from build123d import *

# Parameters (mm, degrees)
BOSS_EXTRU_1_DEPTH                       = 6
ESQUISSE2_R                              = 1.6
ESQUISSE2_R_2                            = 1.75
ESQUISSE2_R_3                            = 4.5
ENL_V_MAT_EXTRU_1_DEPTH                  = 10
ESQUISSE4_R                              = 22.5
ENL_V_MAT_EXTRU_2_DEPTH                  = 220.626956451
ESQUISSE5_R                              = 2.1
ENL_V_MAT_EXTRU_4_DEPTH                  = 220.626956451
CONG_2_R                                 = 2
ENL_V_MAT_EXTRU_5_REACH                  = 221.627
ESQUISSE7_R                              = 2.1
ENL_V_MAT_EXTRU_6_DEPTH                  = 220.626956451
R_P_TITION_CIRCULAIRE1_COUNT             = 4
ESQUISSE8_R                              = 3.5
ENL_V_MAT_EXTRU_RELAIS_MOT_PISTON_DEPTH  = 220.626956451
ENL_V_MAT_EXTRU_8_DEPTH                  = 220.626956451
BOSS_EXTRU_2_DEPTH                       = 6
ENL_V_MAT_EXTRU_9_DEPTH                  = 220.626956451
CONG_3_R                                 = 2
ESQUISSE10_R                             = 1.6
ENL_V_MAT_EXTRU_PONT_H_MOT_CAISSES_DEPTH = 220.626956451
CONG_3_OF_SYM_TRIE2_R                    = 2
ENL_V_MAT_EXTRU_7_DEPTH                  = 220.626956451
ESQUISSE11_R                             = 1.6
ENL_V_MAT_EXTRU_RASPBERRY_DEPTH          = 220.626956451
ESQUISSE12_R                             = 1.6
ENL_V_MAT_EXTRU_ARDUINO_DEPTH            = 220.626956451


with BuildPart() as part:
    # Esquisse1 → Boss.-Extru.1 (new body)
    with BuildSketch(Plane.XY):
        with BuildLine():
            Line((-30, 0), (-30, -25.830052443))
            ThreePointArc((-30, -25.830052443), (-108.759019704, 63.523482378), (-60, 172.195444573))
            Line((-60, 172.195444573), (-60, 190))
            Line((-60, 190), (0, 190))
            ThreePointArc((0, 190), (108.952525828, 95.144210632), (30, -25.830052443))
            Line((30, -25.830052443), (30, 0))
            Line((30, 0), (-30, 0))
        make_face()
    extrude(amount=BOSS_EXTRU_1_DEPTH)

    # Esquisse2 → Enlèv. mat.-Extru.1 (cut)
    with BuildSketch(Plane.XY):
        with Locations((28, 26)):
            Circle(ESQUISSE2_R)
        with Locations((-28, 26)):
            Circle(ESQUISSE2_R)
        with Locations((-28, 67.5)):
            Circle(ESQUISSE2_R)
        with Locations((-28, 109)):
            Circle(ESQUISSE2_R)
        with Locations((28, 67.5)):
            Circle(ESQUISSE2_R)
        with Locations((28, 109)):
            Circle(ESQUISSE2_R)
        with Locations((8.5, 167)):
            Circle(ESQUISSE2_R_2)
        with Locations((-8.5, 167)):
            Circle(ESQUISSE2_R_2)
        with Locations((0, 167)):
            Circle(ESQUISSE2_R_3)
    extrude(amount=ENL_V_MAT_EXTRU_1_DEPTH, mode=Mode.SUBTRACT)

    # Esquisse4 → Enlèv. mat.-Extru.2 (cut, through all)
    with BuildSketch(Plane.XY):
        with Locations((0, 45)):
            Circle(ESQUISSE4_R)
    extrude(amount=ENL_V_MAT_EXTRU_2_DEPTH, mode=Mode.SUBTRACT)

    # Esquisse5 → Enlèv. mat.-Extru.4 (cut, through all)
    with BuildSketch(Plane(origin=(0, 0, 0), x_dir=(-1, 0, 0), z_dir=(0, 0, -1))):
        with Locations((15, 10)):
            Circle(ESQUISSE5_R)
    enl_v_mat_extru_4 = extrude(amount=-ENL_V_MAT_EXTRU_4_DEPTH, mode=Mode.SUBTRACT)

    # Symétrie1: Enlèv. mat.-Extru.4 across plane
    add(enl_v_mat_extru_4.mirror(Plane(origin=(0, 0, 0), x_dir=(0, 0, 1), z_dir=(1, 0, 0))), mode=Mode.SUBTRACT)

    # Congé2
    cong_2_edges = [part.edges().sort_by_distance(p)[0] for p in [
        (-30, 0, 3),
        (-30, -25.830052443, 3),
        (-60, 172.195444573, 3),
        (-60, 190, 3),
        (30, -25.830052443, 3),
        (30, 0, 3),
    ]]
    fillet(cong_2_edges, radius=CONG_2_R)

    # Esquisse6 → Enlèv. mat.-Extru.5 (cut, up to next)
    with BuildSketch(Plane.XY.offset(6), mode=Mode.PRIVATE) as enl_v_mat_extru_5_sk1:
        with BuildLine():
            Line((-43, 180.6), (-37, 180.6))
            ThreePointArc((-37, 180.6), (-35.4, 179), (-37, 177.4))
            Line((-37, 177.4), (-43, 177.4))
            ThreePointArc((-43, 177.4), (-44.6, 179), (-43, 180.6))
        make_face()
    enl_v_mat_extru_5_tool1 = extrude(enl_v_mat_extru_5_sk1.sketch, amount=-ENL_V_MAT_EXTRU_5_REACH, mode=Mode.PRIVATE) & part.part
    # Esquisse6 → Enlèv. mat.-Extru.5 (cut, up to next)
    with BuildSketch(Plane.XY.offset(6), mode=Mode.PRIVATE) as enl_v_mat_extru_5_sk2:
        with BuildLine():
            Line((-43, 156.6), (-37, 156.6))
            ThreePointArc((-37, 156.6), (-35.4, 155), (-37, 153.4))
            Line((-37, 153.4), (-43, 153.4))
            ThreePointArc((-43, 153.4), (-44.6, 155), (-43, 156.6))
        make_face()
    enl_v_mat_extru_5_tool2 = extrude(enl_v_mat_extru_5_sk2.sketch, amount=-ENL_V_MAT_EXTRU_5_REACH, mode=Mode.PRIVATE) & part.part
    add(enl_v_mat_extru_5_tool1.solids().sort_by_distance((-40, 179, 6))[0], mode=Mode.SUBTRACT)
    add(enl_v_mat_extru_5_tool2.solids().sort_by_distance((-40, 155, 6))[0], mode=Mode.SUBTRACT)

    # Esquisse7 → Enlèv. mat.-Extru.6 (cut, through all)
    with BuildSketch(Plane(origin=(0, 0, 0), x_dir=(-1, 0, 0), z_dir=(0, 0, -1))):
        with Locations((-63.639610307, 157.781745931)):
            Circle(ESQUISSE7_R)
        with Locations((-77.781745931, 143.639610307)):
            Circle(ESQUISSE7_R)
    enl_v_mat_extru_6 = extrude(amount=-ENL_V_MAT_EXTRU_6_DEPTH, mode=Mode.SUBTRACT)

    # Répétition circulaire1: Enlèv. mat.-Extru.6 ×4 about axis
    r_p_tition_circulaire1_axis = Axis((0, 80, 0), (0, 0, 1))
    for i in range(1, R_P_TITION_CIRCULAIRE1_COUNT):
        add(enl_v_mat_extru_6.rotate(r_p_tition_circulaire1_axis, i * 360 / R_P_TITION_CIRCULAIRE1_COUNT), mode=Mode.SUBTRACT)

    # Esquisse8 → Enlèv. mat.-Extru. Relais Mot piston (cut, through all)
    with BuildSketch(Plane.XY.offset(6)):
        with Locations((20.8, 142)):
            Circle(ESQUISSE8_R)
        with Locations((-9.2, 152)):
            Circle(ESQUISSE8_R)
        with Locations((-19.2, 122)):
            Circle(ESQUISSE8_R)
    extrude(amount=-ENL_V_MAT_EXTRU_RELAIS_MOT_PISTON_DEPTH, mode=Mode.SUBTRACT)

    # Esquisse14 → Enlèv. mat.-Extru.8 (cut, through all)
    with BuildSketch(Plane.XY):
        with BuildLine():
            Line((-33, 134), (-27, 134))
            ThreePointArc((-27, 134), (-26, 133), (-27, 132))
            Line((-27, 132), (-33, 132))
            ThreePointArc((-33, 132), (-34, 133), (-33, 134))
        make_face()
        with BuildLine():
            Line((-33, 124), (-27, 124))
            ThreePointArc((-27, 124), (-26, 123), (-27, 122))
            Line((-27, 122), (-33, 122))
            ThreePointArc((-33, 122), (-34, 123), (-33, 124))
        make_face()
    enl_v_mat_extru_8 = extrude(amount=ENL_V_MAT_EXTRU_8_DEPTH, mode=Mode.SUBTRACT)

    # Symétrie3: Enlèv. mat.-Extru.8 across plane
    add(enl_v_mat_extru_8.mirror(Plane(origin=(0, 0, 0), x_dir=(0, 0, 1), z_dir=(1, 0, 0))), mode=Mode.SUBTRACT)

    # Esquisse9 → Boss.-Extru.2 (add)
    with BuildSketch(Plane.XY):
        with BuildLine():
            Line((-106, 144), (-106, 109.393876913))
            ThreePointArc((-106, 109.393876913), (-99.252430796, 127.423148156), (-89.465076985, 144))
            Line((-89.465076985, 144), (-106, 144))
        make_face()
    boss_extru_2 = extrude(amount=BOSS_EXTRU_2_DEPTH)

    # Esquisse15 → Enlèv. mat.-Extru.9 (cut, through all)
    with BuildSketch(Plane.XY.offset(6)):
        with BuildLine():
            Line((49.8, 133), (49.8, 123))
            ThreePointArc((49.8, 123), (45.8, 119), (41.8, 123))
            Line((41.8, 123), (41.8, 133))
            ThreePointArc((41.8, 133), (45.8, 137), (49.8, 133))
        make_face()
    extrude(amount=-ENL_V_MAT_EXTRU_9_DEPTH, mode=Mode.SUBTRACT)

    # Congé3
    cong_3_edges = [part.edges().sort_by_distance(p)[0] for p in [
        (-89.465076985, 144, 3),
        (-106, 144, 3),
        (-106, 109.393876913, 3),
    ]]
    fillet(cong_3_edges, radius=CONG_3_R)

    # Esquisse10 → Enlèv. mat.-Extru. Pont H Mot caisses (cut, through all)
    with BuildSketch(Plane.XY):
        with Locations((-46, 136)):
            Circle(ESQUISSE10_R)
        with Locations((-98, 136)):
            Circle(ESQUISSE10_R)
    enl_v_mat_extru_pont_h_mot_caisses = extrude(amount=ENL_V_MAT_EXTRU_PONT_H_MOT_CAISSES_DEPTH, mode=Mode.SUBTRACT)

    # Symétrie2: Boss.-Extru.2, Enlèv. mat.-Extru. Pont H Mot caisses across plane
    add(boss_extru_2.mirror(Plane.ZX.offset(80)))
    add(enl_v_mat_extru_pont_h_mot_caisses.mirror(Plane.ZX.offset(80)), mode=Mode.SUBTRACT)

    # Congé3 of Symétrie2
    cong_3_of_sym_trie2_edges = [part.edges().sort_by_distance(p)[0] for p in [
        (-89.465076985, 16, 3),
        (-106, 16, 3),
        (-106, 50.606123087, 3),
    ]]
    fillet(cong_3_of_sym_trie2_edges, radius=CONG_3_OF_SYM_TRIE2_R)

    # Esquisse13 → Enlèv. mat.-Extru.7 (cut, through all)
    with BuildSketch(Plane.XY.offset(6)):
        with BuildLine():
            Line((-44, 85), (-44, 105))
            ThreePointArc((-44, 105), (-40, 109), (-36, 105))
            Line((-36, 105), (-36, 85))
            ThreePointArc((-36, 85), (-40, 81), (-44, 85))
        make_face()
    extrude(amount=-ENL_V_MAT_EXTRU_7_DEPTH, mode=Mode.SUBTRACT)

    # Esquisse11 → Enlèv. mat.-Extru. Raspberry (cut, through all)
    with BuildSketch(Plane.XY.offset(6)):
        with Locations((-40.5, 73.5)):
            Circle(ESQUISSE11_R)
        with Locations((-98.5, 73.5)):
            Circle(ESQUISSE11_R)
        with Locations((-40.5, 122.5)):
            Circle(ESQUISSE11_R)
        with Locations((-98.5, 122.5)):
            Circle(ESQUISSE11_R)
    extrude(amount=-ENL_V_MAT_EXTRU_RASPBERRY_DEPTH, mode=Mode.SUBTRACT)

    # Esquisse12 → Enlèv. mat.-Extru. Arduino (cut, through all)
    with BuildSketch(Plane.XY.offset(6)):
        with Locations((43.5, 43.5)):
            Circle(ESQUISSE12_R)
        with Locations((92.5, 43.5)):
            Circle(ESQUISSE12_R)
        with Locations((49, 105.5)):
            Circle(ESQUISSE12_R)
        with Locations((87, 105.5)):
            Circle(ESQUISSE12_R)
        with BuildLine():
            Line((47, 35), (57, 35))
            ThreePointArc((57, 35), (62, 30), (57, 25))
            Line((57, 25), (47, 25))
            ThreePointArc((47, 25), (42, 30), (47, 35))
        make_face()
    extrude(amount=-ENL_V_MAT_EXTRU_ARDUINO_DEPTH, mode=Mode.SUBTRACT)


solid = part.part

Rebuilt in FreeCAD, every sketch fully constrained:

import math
import FreeCAD as App
import Part
import Sketcher
Q = App.Units.Quantity


def edges_at(feature, points):
    """Names of the edges that pass closest to the given points."""
    edges = feature.Shape.Edges
    near = lambda p: min(range(len(edges)), key=lambda i: edges[i].distToShape(Part.Vertex(*p))[0])
    return sorted({f"Edge{near(p) + 1}" for p in points})

doc = App.newDocument("Part")
params = doc.addObject("Spreadsheet::Sheet", "Params")
for row, (alias, value) in enumerate([
    ("sketch1_radius", "110 mm"),
    ("sketch1_width", "60 mm"),
    ("pad1_length", "6 mm"),
    ("sketch2_diameter", "9 mm"),
    ("sketch2_diameter2", "3.2 mm"),
    ("sketch2_diameter3", "3.5 mm"),
    ("pocket1_length", "10 mm"),
    ("sketch3_diameter", "45 mm"),
    ("sketch4_diameter", "4.2 mm"),
    ("fillet_radius", "2 mm"),
    ("sketch5_radius", "1.6 mm"),
    ("sketch5_width", "6 mm"),
    ("sketch6_radius", "1.6 mm"),
    ("sketch6_width", "6 mm"),
    ("sketch7_diameter", "4.2 mm"),
    ("sketch8_diameter", "7 mm"),
    ("sketch9_radius", "1 mm"),
    ("sketch9_width", "6 mm"),
    ("sketch10_radius", "110 mm"),
    ("pad2_length", "6 mm"),
    ("sketch11_radius", "4 mm"),
    ("sketch11_height", "10 mm"),
    ("fillet2_radius", "2 mm"),
    ("sketch12_diameter", "3.2 mm"),
    ("fillet3_radius", "2 mm"),
    ("sketch13_radius", "4 mm"),
    ("sketch13_height", "20 mm"),
    ("sketch14_diameter", "3.2 mm"),
    ("sketch15_radius", "5 mm"),
    ("sketch15_diameter", "3.2 mm"),
    ("sketch15_width", "10 mm"),
], start=1):
    params.set(f"A{row}", alias)
    params.set(f"B{row}", "=" + value)
    params.setAlias(f"B{row}", alias)

body = doc.addObject("PartDesign::Body", "Body")

# Sketch on XY plane
sketch1 = body.newObject("Sketcher::SketchObject", "Sketch")
sketch1.AttachmentSupport = (doc.getObject("XY_Plane"), [""])
sketch1.MapMode = "FlatFace"
sketch1.addGeometry([
    Part.LineSegment(App.Vector(-30, -26, 0), App.Vector(-30, 0, 0)),  # 0
    Part.LineSegment(App.Vector(-30, 0, 0), App.Vector(30, 0, 0)),  # 1
    Part.LineSegment(App.Vector(30, 0, 0), App.Vector(30, -26, 0)),  # 2
    Part.ArcOfCircle(Part.Circle(App.Vector(0, 80, 0), App.Vector(0, 0, 1), 110), math.radians(-74), math.radians(90)),  # 3
    Part.LineSegment(App.Vector(0, 190, 0), App.Vector(-60, 190, 0)),  # 4
    Part.LineSegment(App.Vector(-60, 190, 0), App.Vector(-60, 172, 0)),  # 5
    Part.ArcOfCircle(Part.Circle(App.Vector(0, 80, 0), App.Vector(0, 0, 1), 110), math.radians(123), math.radians(254)),  # 6
], False)
sketch1.addConstraint([
    Sketcher.Constraint("Coincident", 0, 2, 1, 1),
    Sketcher.Constraint("Coincident", 1, 2, 2, 1),
    Sketcher.Constraint("Coincident", 2, 2, 3, 1),
    Sketcher.Constraint("Tangent", 3, 2, 4, 1),
    Sketcher.Constraint("Coincident", 4, 2, 5, 1),
    Sketcher.Constraint("Coincident", 5, 2, 6, 1),
    Sketcher.Constraint("Coincident", 6, 2, 0, 1),
    Sketcher.Constraint("Vertical", 0),
    Sketcher.Constraint("Horizontal", 1),
    Sketcher.Constraint("Vertical", 2),
    Sketcher.Constraint("Horizontal", 4),
    Sketcher.Constraint("Vertical", 5),
    Sketcher.Constraint("Coincident", 6, 3, 3, 3),
    Sketcher.Constraint("Equal", 3, 6),
    Sketcher.Constraint("Symmetric", 0, 2, 1, 2, -1, 1),
    Sketcher.Constraint("PointOnObject", 3, 3, -2),
    Sketcher.Constraint("Equal", 1, 4),
    Sketcher.Constraint("Radius", 3, Q("110 mm")),
    Sketcher.Constraint("DistanceX", 1, 1, 1, 2, Q("60 mm")),
    Sketcher.Constraint("DistanceY", -1, 1, 3, 3, Q("80 mm")),
])
sketch1.setExpression("Constraints[17]", "Params.sketch1_radius")
sketch1.setExpression("Constraints[18]", "Params.sketch1_width")
pad1 = body.newObject("PartDesign::Pad", "Pad")
pad1.Profile = sketch1
pad1.setExpression("Length", "Params.pad1_length")

# Sketch on XY plane
sketch2 = body.newObject("Sketcher::SketchObject", "Sketch001")
sketch2.AttachmentSupport = (doc.getObject("XY_Plane"), [""])
sketch2.MapMode = "FlatFace"
sketch2.addGeometry([
    Part.Circle(App.Vector(28, 26, 0), App.Vector(0, 0, 1), 1.6),  # 0
    Part.Circle(App.Vector(-28, 26, 0), App.Vector(0, 0, 1), 1.6),  # 1
    Part.Circle(App.Vector(-28, 67.5, 0), App.Vector(0, 0, 1), 1.6),  # 2
    Part.Circle(App.Vector(-28, 109, 0), App.Vector(0, 0, 1), 1.6),  # 3
    Part.Circle(App.Vector(28, 67.5, 0), App.Vector(0, 0, 1), 1.6),  # 4
    Part.Circle(App.Vector(28, 109, 0), App.Vector(0, 0, 1), 1.6),  # 5
    Part.Circle(App.Vector(8.5, 167, 0), App.Vector(0, 0, 1), 1.8),  # 6
    Part.Circle(App.Vector(-8.5, 167, 0), App.Vector(0, 0, 1), 1.8),  # 7
    Part.Circle(App.Vector(0, 167, 0), App.Vector(0, 0, 1), 4.5),  # 8
], False)
sketch2.addConstraint([
    Sketcher.Constraint("Equal", 0, 1),
    Sketcher.Constraint("Equal", 1, 2),
    Sketcher.Constraint("Equal", 2, 3),
    Sketcher.Constraint("Equal", 3, 4),
    Sketcher.Constraint("Equal", 4, 5),
    Sketcher.Constraint("Equal", 6, 7),
    Sketcher.Constraint("Symmetric", 0, 3, 1, 3, -2),
    Sketcher.Constraint("Symmetric", 2, 3, 4, 3, -2),
    Sketcher.Constraint("Symmetric", 3, 3, 5, 3, -2),
    Sketcher.Constraint("Symmetric", 6, 3, 7, 3, -2),
    Sketcher.Constraint("PointOnObject", 8, 3, -2),
    Sketcher.Constraint("Horizontal", 7, 3, 8, 3),
    Sketcher.Constraint("Vertical", 1, 3, 2, 3),
    Sketcher.Constraint("Vertical", 2, 3, 3, 3),
    Sketcher.Constraint("Diameter", 8, Q("9 mm")),
    Sketcher.Constraint("Diameter", 0, Q("3.2 mm")),
    Sketcher.Constraint("Diameter", 6, Q("3.5 mm")),
    Sketcher.Constraint("DistanceX", -1, 1, 0, 3, Q("28 mm")),
    Sketcher.Constraint("DistanceY", -1, 1, 0, 3, Q("26 mm")),
    Sketcher.Constraint("DistanceY", -1, 1, 3, 3, Q("109 mm")),
    Sketcher.Constraint("DistanceY", -1, 1, 6, 3, Q("167 mm")),
    Sketcher.Constraint("DistanceX", 7, 3, 6, 3, Q("17 mm")),
    Sketcher.Constraint("DistanceY", -1, 1, 2, 3, Q("67.5 mm")),
])
sketch2.setExpression("Constraints[14]", "Params.sketch2_diameter")
sketch2.setExpression("Constraints[15]", "Params.sketch2_diameter2")
sketch2.setExpression("Constraints[16]", "Params.sketch2_diameter3")
pocket1 = body.newObject("PartDesign::Pocket", "Pocket")
pocket1.Profile = sketch2
pocket1.setExpression("Length", "Params.pocket1_length")
pocket1.Reversed = True

# Sketch on XY plane
sketch3 = body.newObject("Sketcher::SketchObject", "Sketch002")
sketch3.AttachmentSupport = (doc.getObject("XY_Plane"), [""])
sketch3.MapMode = "FlatFace"
sketch3.addGeometry(Part.Circle(App.Vector(0, 45, 0), App.Vector(0, 0, 1), 22), False)
sketch3.addConstraint([
    Sketcher.Constraint("PointOnObject", 0, 3, -2),
    Sketcher.Constraint("Diameter", 0, Q("45 mm")),
    Sketcher.Constraint("DistanceY", -1, 1, 0, 3, Q("45 mm")),
])
sketch3.setExpression("Constraints[1]", "Params.sketch3_diameter")
pocket2 = body.newObject("PartDesign::Pocket", "Pocket001")
pocket2.Profile = sketch3
pocket2.Type = "ThroughAll"
pocket2.Reversed = True

# Sketch on XY plane
sketch4 = body.newObject("Sketcher::SketchObject", "Sketch003")
sketch4.AttachmentSupport = (doc.getObject("XY_Plane"), [""])
sketch4.MapMode = "FlatFace"
sketch4.addGeometry(Part.Circle(App.Vector(-15, 10, 0), App.Vector(0, 0, 1), 2.1), False)
sketch4.addConstraint([
    Sketcher.Constraint("Diameter", 0, Q("4.2 mm")),
    Sketcher.Constraint("DistanceX", 0, 3, -1, 1, Q("15 mm")),
    Sketcher.Constraint("DistanceY", -1, 1, 0, 3, Q("10 mm")),
])
sketch4.setExpression("Constraints[0]", "Params.sketch4_diameter")
pocket3 = body.newObject("PartDesign::Pocket", "Pocket002")
pocket3.Profile = sketch4
pocket3.Type = "ThroughAll"
pocket3.Reversed = True
doc.recompute()

mirrored = body.newObject("PartDesign::Mirrored", "Mirrored")
mirrored.Originals = [pocket3]
mirrored.MirrorPlane = (doc.getObject("YZ_Plane"), [""])
body.Tip = mirrored
doc.recompute()

fillet = body.newObject("PartDesign::Fillet", "Fillet")
fillet.Base = (mirrored, edges_at(mirrored, [
    (-30, 0, 3),
    (-30, -25.83, 3),
    (-60, 172.195, 3),
    (-60, 190, 3),
    (30, -25.83, 3),
    (30, 0, 3),
]))
fillet.setExpression("Radius", "Params.fillet_radius")

# Sketch on XY plane
sketch5 = body.newObject("Sketcher::SketchObject", "Sketch004")
sketch5.AttachmentSupport = (doc.getObject("XY_Plane"), [""])
sketch5.MapMode = "FlatFace"
sketch5.AttachmentOffset = App.Placement(App.Vector(0, 0, 6), App.Rotation())
sketch5.addGeometry([
    Part.LineSegment(App.Vector(-37, 180.6, 0), App.Vector(-43, 180.6, 0)),
    Part.ArcOfCircle(Part.Circle(App.Vector(-43, 179, 0), App.Vector(0, 0, 1), 1.6), math.radians(90), math.radians(270)),
    Part.LineSegment(App.Vector(-43, 177.4, 0), App.Vector(-37, 177.4, 0)),
    Part.ArcOfCircle(Part.Circle(App.Vector(-37, 179, 0), App.Vector(0, 0, 1), 1.6), math.radians(-90), math.radians(90)),
], False)
sketch5.addConstraint([
    Sketcher.Constraint("Tangent", 0, 2, 1, 1),
    Sketcher.Constraint("Tangent", 1, 2, 2, 1),
    Sketcher.Constraint("Tangent", 2, 2, 3, 1),
    Sketcher.Constraint("Tangent", 3, 2, 0, 1),
    Sketcher.Constraint("Horizontal", 0),
    Sketcher.Constraint("Horizontal", 2),
    Sketcher.Constraint("Radius", 1, Q("1.6 mm")),
    Sketcher.Constraint("DistanceX", 0, 2, 0, 1, Q("6 mm")),
    Sketcher.Constraint("DistanceX", 1, 3, -1, 1, Q("43 mm")),
    Sketcher.Constraint("DistanceY", -1, 1, 1, 3, Q("179 mm")),
])
sketch5.setExpression("Constraints[6]", "Params.sketch5_radius")
sketch5.setExpression("Constraints[7]", "Params.sketch5_width")
pocket4 = body.newObject("PartDesign::Pocket", "Pocket003")
pocket4.Profile = sketch5
pocket4.Type = "UpToFirst"

# Sketch on XY plane
sketch6 = body.newObject("Sketcher::SketchObject", "Sketch005")
sketch6.AttachmentSupport = (doc.getObject("XY_Plane"), [""])
sketch6.MapMode = "FlatFace"
sketch6.AttachmentOffset = App.Placement(App.Vector(0, 0, 6), App.Rotation())
sketch6.addGeometry([
    Part.LineSegment(App.Vector(-37, 156.6, 0), App.Vector(-43, 156.6, 0)),
    Part.ArcOfCircle(Part.Circle(App.Vector(-43, 155, 0), App.Vector(0, 0, 1), 1.6), math.radians(90), math.radians(270)),
    Part.LineSegment(App.Vector(-43, 153.4, 0), App.Vector(-37, 153.4, 0)),
    Part.ArcOfCircle(Part.Circle(App.Vector(-37, 155, 0), App.Vector(0, 0, 1), 1.6), math.radians(-90), math.radians(90)),
], False)
sketch6.addConstraint([
    Sketcher.Constraint("Tangent", 0, 2, 1, 1),
    Sketcher.Constraint("Tangent", 1, 2, 2, 1),
    Sketcher.Constraint("Tangent", 2, 2, 3, 1),
    Sketcher.Constraint("Tangent", 3, 2, 0, 1),
    Sketcher.Constraint("Horizontal", 0),
    Sketcher.Constraint("Horizontal", 2),
    Sketcher.Constraint("Radius", 1, Q("1.6 mm")),
    Sketcher.Constraint("DistanceX", 0, 2, 0, 1, Q("6 mm")),
    Sketcher.Constraint("DistanceX", 1, 3, -1, 1, Q("43 mm")),
    Sketcher.Constraint("DistanceY", -1, 1, 1, 3, Q("155 mm")),
])
sketch6.setExpression("Constraints[6]", "Params.sketch6_radius")
sketch6.setExpression("Constraints[7]", "Params.sketch6_width")
pocket5 = body.newObject("PartDesign::Pocket", "Pocket004")
pocket5.Profile = sketch6
pocket5.Type = "UpToFirst"

# Sketch on XY plane
sketch7 = body.newObject("Sketcher::SketchObject", "Sketch006")
sketch7.AttachmentSupport = (doc.getObject("XY_Plane"), [""])
sketch7.MapMode = "FlatFace"
sketch7.addGeometry([
    Part.Circle(App.Vector(63.6, 157.8, 0), App.Vector(0, 0, 1), 2.1),
    Part.Circle(App.Vector(77.8, 143.6, 0), App.Vector(0, 0, 1), 2.1),
], False)
sketch7.addConstraint([
    Sketcher.Constraint("Equal", 0, 1),
    Sketcher.Constraint("Diameter", 0, Q("4.2 mm")),
    Sketcher.Constraint("DistanceX", -1, 1, 0, 3, Q("63.63961 mm")),
    Sketcher.Constraint("DistanceY", -1, 1, 1, 3, Q("143.63961 mm")),
    Sketcher.Constraint("DistanceY", -1, 1, 0, 3, Q("157.781746 mm")),
    Sketcher.Constraint("DistanceX", -1, 1, 1, 3, Q("77.781746 mm")),
])
sketch7.setExpression("Constraints[1]", "Params.sketch7_diameter")
pocket6 = body.newObject("PartDesign::Pocket", "Pocket005")
pocket6.Profile = sketch7
pocket6.Type = "ThroughAll"
pocket6.Reversed = True
doc.recompute()

datumline = body.newObject("PartDesign::Line", "DatumLine")
datumline.Placement = App.Placement(App.Vector(0, 80, 0), App.Rotation(App.Vector(0, 0, 1), App.Vector(0, 0, 1)))
polarpattern = body.newObject("PartDesign::PolarPattern", "PolarPattern")
polarpattern.Originals = [pocket6]
polarpattern.Axis = (datumline, [""])
polarpattern.Angle = 360
polarpattern.Occurrences = 4
body.Tip = polarpattern

# Sketch on XY plane
sketch8 = body.newObject("Sketcher::SketchObject", "Sketch007")
sketch8.AttachmentSupport = (doc.getObject("XY_Plane"), [""])
sketch8.MapMode = "FlatFace"
sketch8.AttachmentOffset = App.Placement(App.Vector(0, 0, 6), App.Rotation())
sketch8.addGeometry([
    Part.Circle(App.Vector(20.8, 142, 0), App.Vector(0, 0, 1), 3.5),
    Part.Circle(App.Vector(-9.2, 152, 0), App.Vector(0, 0, 1), 3.5),
    Part.Circle(App.Vector(-19.2, 122, 0), App.Vector(0, 0, 1), 3.5),
], False)
sketch8.addConstraint([
    Sketcher.Constraint("Equal", 0, 1),
    Sketcher.Constraint("Equal", 1, 2),
    Sketcher.Constraint("Diameter", 0, Q("7 mm")),
    Sketcher.Constraint("DistanceY", -1, 1, 0, 3, Q("142 mm")),
    Sketcher.Constraint("DistanceY", -1, 1, 1, 3, Q("152 mm")),
    Sketcher.Constraint("DistanceY", -1, 1, 2, 3, Q("122 mm")),
    Sketcher.Constraint("DistanceX", 1, 3, 0, 3, Q("30 mm")),
    Sketcher.Constraint("DistanceX", 2, 3, 1, 3, Q("10 mm")),
    Sketcher.Constraint("DistanceX", -1, 1, 0, 3, Q("20.8 mm")),
])
sketch8.setExpression("Constraints[2]", "Params.sketch8_diameter")
pocket7 = body.newObject("PartDesign::Pocket", "Pocket006")
pocket7.Profile = sketch8
pocket7.Type = "ThroughAll"

# Sketch on XY plane
sketch9 = body.newObject("Sketcher::SketchObject", "Sketch008")
sketch9.AttachmentSupport = (doc.getObject("XY_Plane"), [""])
sketch9.MapMode = "FlatFace"
sketch9.addGeometry([
    Part.LineSegment(App.Vector(-27, 134, 0), App.Vector(-33, 134, 0)),  # 0
    Part.ArcOfCircle(Part.Circle(App.Vector(-33, 133, 0), App.Vector(0, 0, 1), 1), math.radians(90), math.radians(270)),  # 1
    Part.LineSegment(App.Vector(-33, 132, 0), App.Vector(-27, 132, 0)),  # 2
    Part.ArcOfCircle(Part.Circle(App.Vector(-27, 133, 0), App.Vector(0, 0, 1), 1), math.radians(-90), math.radians(90)),  # 3
    Part.LineSegment(App.Vector(-27, 124, 0), App.Vector(-33, 124, 0)),  # 4
    Part.ArcOfCircle(Part.Circle(App.Vector(-33, 123, 0), App.Vector(0, 0, 1), 1), math.radians(90), math.radians(270)),  # 5
    Part.LineSegment(App.Vector(-33, 122, 0), App.Vector(-27, 122, 0)),  # 6
    Part.ArcOfCircle(Part.Circle(App.Vector(-27, 123, 0), App.Vector(0, 0, 1), 1), math.radians(-90), math.radians(90)),  # 7
], False)
sketch9.addConstraint([
    Sketcher.Constraint("Tangent", 0, 2, 1, 1),
    Sketcher.Constraint("Tangent", 1, 2, 2, 1),
    Sketcher.Constraint("Tangent", 2, 2, 3, 1),
    Sketcher.Constraint("Tangent", 3, 2, 0, 1),
    Sketcher.Constraint("Tangent", 4, 2, 5, 1),
    Sketcher.Constraint("Tangent", 5, 2, 6, 1),
    Sketcher.Constraint("Tangent", 6, 2, 7, 1),
    Sketcher.Constraint("Tangent", 7, 2, 4, 1),
    Sketcher.Constraint("Horizontal", 0),
    Sketcher.Constraint("Horizontal", 2),
    Sketcher.Constraint("Horizontal", 4),
    Sketcher.Constraint("Horizontal", 6),
    Sketcher.Constraint("Equal", 3, 5),
    Sketcher.Constraint("Vertical", 1, 3, 5, 3),
    Sketcher.Constraint("Vertical", 3, 3, 7, 3),
    Sketcher.Constraint("Radius", 1, Q("1 mm")),
    Sketcher.Constraint("DistanceX", 0, 2, 0, 1, Q("6 mm")),
    Sketcher.Constraint("DistanceX", 1, 3, -1, 1, Q("33 mm")),
    Sketcher.Constraint("DistanceY", -1, 1, 1, 3, Q("133 mm")),
    Sketcher.Constraint("DistanceY", -1, 1, 5, 3, Q("123 mm")),
])
sketch9.setExpression("Constraints[15]", "Params.sketch9_radius")
sketch9.setExpression("Constraints[16]", "Params.sketch9_width")
pocket8 = body.newObject("PartDesign::Pocket", "Pocket007")
pocket8.Profile = sketch9
pocket8.Type = "ThroughAll"
pocket8.Reversed = True
doc.recompute()

mirrored2 = body.newObject("PartDesign::Mirrored", "Mirrored001")
mirrored2.Originals = [pocket8]
mirrored2.MirrorPlane = (doc.getObject("YZ_Plane"), [""])
body.Tip = mirrored2

# Sketch on XY plane
sketch10 = body.newObject("Sketcher::SketchObject", "Sketch009")
sketch10.AttachmentSupport = (doc.getObject("XY_Plane"), [""])
sketch10.MapMode = "FlatFace"
sketch10.addGeometry([
    Part.LineSegment(App.Vector(-106, 144, 0), App.Vector(-106, 109, 0)),
    Part.ArcOfCircle(Part.Circle(App.Vector(0, 80, 0), App.Vector(0, 0, 1), 110), math.radians(144), math.radians(165)),
    Part.LineSegment(App.Vector(-89, 144, 0), App.Vector(-106, 144, 0)),
], False)
sketch10.addConstraint([
    Sketcher.Constraint("Coincident", 0, 2, 1, 2),
    Sketcher.Constraint("Coincident", 1, 1, 2, 1),
    Sketcher.Constraint("Coincident", 2, 2, 0, 1),
    Sketcher.Constraint("Vertical", 0),
    Sketcher.Constraint("Horizontal", 2),
    Sketcher.Constraint("PointOnObject", 1, 3, -2),
    Sketcher.Constraint("Radius", 1, Q("110 mm")),
    Sketcher.Constraint("DistanceY", -1, 1, 1, 3, Q("80 mm")),
    Sketcher.Constraint("DistanceX", 0, 2, -1, 1, Q("106 mm")),
    Sketcher.Constraint("DistanceY", -1, 1, 1, 1, Q("144 mm")),
])
sketch10.setExpression("Constraints[6]", "Params.sketch10_radius")
pad2 = body.newObject("PartDesign::Pad", "Pad001")
pad2.Profile = sketch10
pad2.setExpression("Length", "Params.pad2_length")

# Sketch on XY plane
sketch11 = body.newObject("Sketcher::SketchObject", "Sketch010")
sketch11.AttachmentSupport = (doc.getObject("XY_Plane"), [""])
sketch11.MapMode = "FlatFace"
sketch11.AttachmentOffset = App.Placement(App.Vector(0, 0, 6), App.Rotation())
sketch11.addGeometry([
    Part.LineSegment(App.Vector(49.8, 123, 0), App.Vector(49.8, 133, 0)),
    Part.ArcOfCircle(Part.Circle(App.Vector(45.8, 133, 0), App.Vector(0, 0, 1), 4), math.radians(0), math.radians(180)),
    Part.LineSegment(App.Vector(41.8, 133, 0), App.Vector(41.8, 123, 0)),
    Part.ArcOfCircle(Part.Circle(App.Vector(45.8, 123, 0), App.Vector(0, 0, 1), 4), math.radians(180), math.radians(360)),
], False)
sketch11.addConstraint([
    Sketcher.Constraint("Tangent", 0, 2, 1, 1),
    Sketcher.Constraint("Tangent", 1, 2, 2, 1),
    Sketcher.Constraint("Tangent", 2, 2, 3, 1),
    Sketcher.Constraint("Tangent", 3, 2, 0, 1),
    Sketcher.Constraint("Vertical", 0),
    Sketcher.Constraint("Vertical", 2),
    Sketcher.Constraint("Radius", 1, Q("4 mm")),
    Sketcher.Constraint("DistanceY", 0, 1, 0, 2, Q("10 mm")),
    Sketcher.Constraint("DistanceY", -1, 1, 1, 3, Q("133 mm")),
    Sketcher.Constraint("DistanceX", -1, 1, 1, 3, Q("45.8 mm")),
])
sketch11.setExpression("Constraints[6]", "Params.sketch11_radius")
sketch11.setExpression("Constraints[7]", "Params.sketch11_height")
pocket9 = body.newObject("PartDesign::Pocket", "Pocket008")
pocket9.Profile = sketch11
pocket9.Type = "ThroughAll"
doc.recompute()

fillet2 = body.newObject("PartDesign::Fillet", "Fillet001")
fillet2.Base = (pocket9, edges_at(pocket9, [(-89.465, 144, 3), (-106, 144, 3), (-106, 109.394, 3)]))
fillet2.setExpression("Radius", "Params.fillet2_radius")

# Sketch on XY plane
sketch12 = body.newObject("Sketcher::SketchObject", "Sketch011")
sketch12.AttachmentSupport = (doc.getObject("XY_Plane"), [""])
sketch12.MapMode = "FlatFace"
sketch12.addGeometry([
    Part.Circle(App.Vector(-46, 136, 0), App.Vector(0, 0, 1), 1.6),
    Part.Circle(App.Vector(-98, 136, 0), App.Vector(0, 0, 1), 1.6),
], False)
sketch12.addConstraint([
    Sketcher.Constraint("Equal", 0, 1),
    Sketcher.Constraint("Horizontal", 0, 3, 1, 3),
    Sketcher.Constraint("Diameter", 0, Q("3.2 mm")),
    Sketcher.Constraint("DistanceX", 0, 3, -1, 1, Q("46 mm")),
    Sketcher.Constraint("DistanceY", -1, 1, 0, 3, Q("136 mm")),
    Sketcher.Constraint("DistanceX", 1, 3, -1, 1, Q("98 mm")),
])
sketch12.setExpression("Constraints[2]", "Params.sketch12_diameter")
pocket10 = body.newObject("PartDesign::Pocket", "Pocket009")
pocket10.Profile = sketch12
pocket10.Type = "ThroughAll"
pocket10.Reversed = True
doc.recompute()

datumplane = body.newObject("PartDesign::Plane", "DatumPlane")
datumplane.AttachmentSupport = (doc.getObject("XZ_Plane"), [""])
datumplane.MapMode = "FlatFace"
datumplane.AttachmentOffset = App.Placement(App.Vector(0, 0, -80), App.Rotation())
mirrored3 = body.newObject("PartDesign::Mirrored", "Mirrored002")
mirrored3.Originals = [pad2, pocket10]
mirrored3.MirrorPlane = (datumplane, [""])
body.Tip = mirrored3
doc.recompute()

fillet3 = body.newObject("PartDesign::Fillet", "Fillet002")
fillet3.Base = (mirrored3, edges_at(mirrored3, [(-89.465, 16, 3), (-106, 16, 3), (-106, 50.606, 3)]))
fillet3.setExpression("Radius", "Params.fillet3_radius")

# Sketch on XY plane
sketch13 = body.newObject("Sketcher::SketchObject", "Sketch012")
sketch13.AttachmentSupport = (doc.getObject("XY_Plane"), [""])
sketch13.MapMode = "FlatFace"
sketch13.AttachmentOffset = App.Placement(App.Vector(0, 0, 6), App.Rotation())
sketch13.addGeometry([
    Part.LineSegment(App.Vector(-44, 105, 0), App.Vector(-44, 85, 0)),
    Part.ArcOfCircle(Part.Circle(App.Vector(-40, 85, 0), App.Vector(0, 0, 1), 4), math.radians(180), math.radians(360)),
    Part.LineSegment(App.Vector(-36, 85, 0), App.Vector(-36, 105, 0)),
    Part.ArcOfCircle(Part.Circle(App.Vector(-40, 105, 0), App.Vector(0, 0, 1), 4), math.radians(0), math.radians(180)),
], False)
sketch13.addConstraint([
    Sketcher.Constraint("Tangent", 0, 2, 1, 1),
    Sketcher.Constraint("Tangent", 1, 2, 2, 1),
    Sketcher.Constraint("Tangent", 2, 2, 3, 1),
    Sketcher.Constraint("Tangent", 3, 2, 0, 1),
    Sketcher.Constraint("Vertical", 0),
    Sketcher.Constraint("Vertical", 2),
    Sketcher.Constraint("Radius", 1, Q("4 mm")),
    Sketcher.Constraint("DistanceY", 0, 2, 0, 1, Q("20 mm")),
    Sketcher.Constraint("DistanceX", 1, 3, -1, 1, Q("40 mm")),
    Sketcher.Constraint("DistanceY", -1, 1, 1, 3, Q("85 mm")),
])
sketch13.setExpression("Constraints[6]", "Params.sketch13_radius")
sketch13.setExpression("Constraints[7]", "Params.sketch13_height")
pocket11 = body.newObject("PartDesign::Pocket", "Pocket010")
pocket11.Profile = sketch13
pocket11.Type = "ThroughAll"

# Sketch on XY plane
sketch14 = body.newObject("Sketcher::SketchObject", "Sketch013")
sketch14.AttachmentSupport = (doc.getObject("XY_Plane"), [""])
sketch14.MapMode = "FlatFace"
sketch14.AttachmentOffset = App.Placement(App.Vector(0, 0, 6), App.Rotation())
sketch14.addGeometry([
    Part.Circle(App.Vector(-40.5, 73.5, 0), App.Vector(0, 0, 1), 1.6),
    Part.Circle(App.Vector(-98.5, 73.5, 0), App.Vector(0, 0, 1), 1.6),
    Part.Circle(App.Vector(-40.5, 122.5, 0), App.Vector(0, 0, 1), 1.6),
    Part.Circle(App.Vector(-98.5, 122.5, 0), App.Vector(0, 0, 1), 1.6),
], False)
sketch14.addConstraint([
    Sketcher.Constraint("Equal", 0, 1),
    Sketcher.Constraint("Equal", 1, 2),
    Sketcher.Constraint("Equal", 2, 3),
    Sketcher.Constraint("Horizontal", 0, 3, 1, 3),
    Sketcher.Constraint("Horizontal", 2, 3, 3, 3),
    Sketcher.Constraint("Vertical", 0, 3, 2, 3),
    Sketcher.Constraint("Vertical", 1, 3, 3, 3),
    Sketcher.Constraint("Diameter", 0, Q("3.2 mm")),
    Sketcher.Constraint("DistanceX", 1, 3, 0, 3, Q("58 mm")),
    Sketcher.Constraint("DistanceY", 0, 3, 2, 3, Q("49 mm")),
    Sketcher.Constraint("DistanceX", 0, 3, -1, 1, Q("40.5 mm")),
    Sketcher.Constraint("DistanceY", -1, 1, 0, 3, Q("73.5 mm")),
])
sketch14.setExpression("Constraints[7]", "Params.sketch14_diameter")
pocket12 = body.newObject("PartDesign::Pocket", "Pocket011")
pocket12.Profile = sketch14
pocket12.Type = "ThroughAll"

# Sketch on XY plane
sketch15 = body.newObject("Sketcher::SketchObject", "Sketch014")
sketch15.AttachmentSupport = (doc.getObject("XY_Plane"), [""])
sketch15.MapMode = "FlatFace"
sketch15.AttachmentOffset = App.Placement(App.Vector(0, 0, 6), App.Rotation())
sketch15.addGeometry([
    Part.Circle(App.Vector(43.5, 43.5, 0), App.Vector(0, 0, 1), 1.6),  # 0
    Part.Circle(App.Vector(92.5, 43.5, 0), App.Vector(0, 0, 1), 1.6),  # 1
    Part.Circle(App.Vector(49, 105.5, 0), App.Vector(0, 0, 1), 1.6),  # 2
    Part.Circle(App.Vector(87, 105.5, 0), App.Vector(0, 0, 1), 1.6),  # 3
    Part.LineSegment(App.Vector(57, 35, 0), App.Vector(47, 35, 0)),  # 4
    Part.ArcOfCircle(Part.Circle(App.Vector(47, 30, 0), App.Vector(0, 0, 1), 5), math.radians(90), math.radians(270)),  # 5
    Part.LineSegment(App.Vector(47, 25, 0), App.Vector(57, 25, 0)),  # 6
    Part.ArcOfCircle(Part.Circle(App.Vector(57, 30, 0), App.Vector(0, 0, 1), 5), math.radians(-90), math.radians(90)),  # 7
], False)
sketch15.addConstraint([
    Sketcher.Constraint("Tangent", 4, 2, 5, 1),
    Sketcher.Constraint("Tangent", 5, 2, 6, 1),
    Sketcher.Constraint("Tangent", 6, 2, 7, 1),
    Sketcher.Constraint("Tangent", 7, 2, 4, 1),
    Sketcher.Constraint("Horizontal", 4),
    Sketcher.Constraint("Horizontal", 6),
    Sketcher.Constraint("Equal", 0, 1),
    Sketcher.Constraint("Equal", 1, 2),
    Sketcher.Constraint("Equal", 2, 3),
    Sketcher.Constraint("Horizontal", 0, 3, 1, 3),
    Sketcher.Constraint("Horizontal", 2, 3, 3, 3),
    Sketcher.Constraint("Radius", 5, Q("5 mm")),
    Sketcher.Constraint("Diameter", 0, Q("3.2 mm")),
    Sketcher.Constraint("DistanceX", 4, 2, 4, 1, Q("10 mm")),
    Sketcher.Constraint("DistanceX", -1, 1, 2, 3, Q("49 mm")),
    Sketcher.Constraint("DistanceX", -1, 1, 3, 3, Q("87 mm")),
    Sketcher.Constraint("DistanceX", -1, 1, 5, 3, Q("47 mm")),
    Sketcher.Constraint("DistanceY", -1, 1, 5, 3, Q("30 mm")),
    Sketcher.Constraint("DistanceX", 0, 3, 1, 3, Q("49 mm")),
    Sketcher.Constraint("DistanceY", 0, 3, 2, 3, Q("62 mm")),
    Sketcher.Constraint("DistanceX", -1, 1, 0, 3, Q("43.5 mm")),
    Sketcher.Constraint("DistanceY", -1, 1, 0, 3, Q("43.5 mm")),
])
sketch15.setExpression("Constraints[11]", "Params.sketch15_radius")
sketch15.setExpression("Constraints[12]", "Params.sketch15_diameter")
sketch15.setExpression("Constraints[13]", "Params.sketch15_width")
pocket13 = body.newObject("PartDesign::Pocket", "Pocket012")
pocket13.Profile = sketch15
pocket13.Type = "ThroughAll"

doc.recompute()
